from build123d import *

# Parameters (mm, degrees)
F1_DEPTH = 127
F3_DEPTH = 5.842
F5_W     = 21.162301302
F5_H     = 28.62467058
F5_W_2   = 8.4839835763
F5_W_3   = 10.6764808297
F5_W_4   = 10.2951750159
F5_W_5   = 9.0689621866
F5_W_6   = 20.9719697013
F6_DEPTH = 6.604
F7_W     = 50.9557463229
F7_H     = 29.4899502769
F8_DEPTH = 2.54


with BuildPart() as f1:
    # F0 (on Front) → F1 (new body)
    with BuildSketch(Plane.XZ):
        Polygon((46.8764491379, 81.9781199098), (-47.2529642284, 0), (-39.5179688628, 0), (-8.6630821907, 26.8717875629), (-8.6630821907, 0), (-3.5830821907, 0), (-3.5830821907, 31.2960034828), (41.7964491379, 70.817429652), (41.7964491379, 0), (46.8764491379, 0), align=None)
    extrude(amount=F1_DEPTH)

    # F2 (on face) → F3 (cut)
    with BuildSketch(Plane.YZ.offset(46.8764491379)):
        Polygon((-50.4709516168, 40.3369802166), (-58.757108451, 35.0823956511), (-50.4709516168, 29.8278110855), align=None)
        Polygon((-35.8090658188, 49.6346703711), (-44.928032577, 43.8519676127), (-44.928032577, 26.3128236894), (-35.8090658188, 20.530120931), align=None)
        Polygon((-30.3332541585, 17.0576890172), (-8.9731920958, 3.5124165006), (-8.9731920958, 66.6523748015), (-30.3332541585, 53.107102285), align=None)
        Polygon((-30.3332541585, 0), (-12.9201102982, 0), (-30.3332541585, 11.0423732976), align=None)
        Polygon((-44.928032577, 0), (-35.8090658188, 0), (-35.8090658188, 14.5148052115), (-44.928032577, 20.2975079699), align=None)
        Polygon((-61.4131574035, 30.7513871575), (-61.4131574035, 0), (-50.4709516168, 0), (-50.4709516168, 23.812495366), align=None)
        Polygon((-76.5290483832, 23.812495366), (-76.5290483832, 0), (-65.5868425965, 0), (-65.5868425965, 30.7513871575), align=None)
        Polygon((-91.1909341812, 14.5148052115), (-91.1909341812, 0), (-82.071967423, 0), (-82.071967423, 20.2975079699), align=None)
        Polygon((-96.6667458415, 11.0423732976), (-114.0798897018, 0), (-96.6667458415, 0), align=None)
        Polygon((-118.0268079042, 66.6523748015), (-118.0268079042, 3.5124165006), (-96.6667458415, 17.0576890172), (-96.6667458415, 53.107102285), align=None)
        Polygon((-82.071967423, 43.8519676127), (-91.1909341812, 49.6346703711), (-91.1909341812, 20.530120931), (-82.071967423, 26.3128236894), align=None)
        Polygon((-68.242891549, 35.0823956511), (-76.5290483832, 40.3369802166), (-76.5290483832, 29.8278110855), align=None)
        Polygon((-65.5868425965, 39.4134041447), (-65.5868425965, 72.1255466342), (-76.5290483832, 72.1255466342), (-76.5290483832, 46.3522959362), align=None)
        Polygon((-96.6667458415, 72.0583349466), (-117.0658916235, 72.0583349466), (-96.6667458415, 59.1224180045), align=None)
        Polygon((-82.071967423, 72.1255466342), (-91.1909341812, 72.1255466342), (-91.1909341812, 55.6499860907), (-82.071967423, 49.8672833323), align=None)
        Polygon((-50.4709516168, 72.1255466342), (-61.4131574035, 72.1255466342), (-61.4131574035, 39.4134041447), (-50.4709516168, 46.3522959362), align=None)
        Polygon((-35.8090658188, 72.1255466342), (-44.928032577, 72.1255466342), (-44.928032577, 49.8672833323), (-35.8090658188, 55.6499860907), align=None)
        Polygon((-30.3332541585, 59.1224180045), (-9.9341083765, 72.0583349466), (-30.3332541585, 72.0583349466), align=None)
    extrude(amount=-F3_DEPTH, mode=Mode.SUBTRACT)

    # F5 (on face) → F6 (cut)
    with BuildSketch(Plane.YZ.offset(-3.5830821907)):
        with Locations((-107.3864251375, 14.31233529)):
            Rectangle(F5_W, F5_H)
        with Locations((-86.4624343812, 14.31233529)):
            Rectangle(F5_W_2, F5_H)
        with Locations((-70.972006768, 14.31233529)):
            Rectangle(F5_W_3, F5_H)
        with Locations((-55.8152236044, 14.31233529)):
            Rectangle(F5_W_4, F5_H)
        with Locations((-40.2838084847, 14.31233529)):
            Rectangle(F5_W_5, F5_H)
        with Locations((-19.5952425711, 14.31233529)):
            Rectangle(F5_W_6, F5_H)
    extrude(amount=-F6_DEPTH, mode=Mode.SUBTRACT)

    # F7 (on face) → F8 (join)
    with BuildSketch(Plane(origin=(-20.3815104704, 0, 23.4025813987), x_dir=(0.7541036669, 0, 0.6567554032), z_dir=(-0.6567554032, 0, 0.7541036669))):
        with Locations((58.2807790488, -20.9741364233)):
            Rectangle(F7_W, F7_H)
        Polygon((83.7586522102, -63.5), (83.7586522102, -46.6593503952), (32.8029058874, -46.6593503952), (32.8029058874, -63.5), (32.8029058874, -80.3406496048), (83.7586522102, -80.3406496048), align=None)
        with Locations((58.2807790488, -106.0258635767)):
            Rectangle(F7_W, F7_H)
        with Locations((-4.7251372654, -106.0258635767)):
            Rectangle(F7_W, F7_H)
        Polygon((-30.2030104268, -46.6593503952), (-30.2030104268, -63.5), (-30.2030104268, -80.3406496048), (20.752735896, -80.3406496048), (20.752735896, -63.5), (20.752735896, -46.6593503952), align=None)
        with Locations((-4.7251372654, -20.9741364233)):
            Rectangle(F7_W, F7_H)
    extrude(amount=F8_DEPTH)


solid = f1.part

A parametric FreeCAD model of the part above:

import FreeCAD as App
import Part
import Sketcher
Q = App.Units.Quantity

doc = App.newDocument("Part")
body = doc.addObject("PartDesign::Body", "Body")

# Sketch on XZ plane
sketch1 = doc.addObject("Sketcher::SketchObject", "Sketch")
body.addObject(sketch1)
sketch1.AttachmentSupport = (doc.XZ_Plane, [""])
sketch1.MapMode = "FlatFace"
sketch1.addGeometry(Part.LineSegment(App.Vector(47, 82, 0), App.Vector(-47, 0, 0)), False)
sketch1.addGeometry(Part.LineSegment(App.Vector(-47, 0, 0), App.Vector(-40, 0, 0)), False)
sketch1.addGeometry(Part.LineSegment(App.Vector(-40, 0, 0), App.Vector(-9, 27, 0)), False)
sketch1.addGeometry(Part.LineSegment(App.Vector(-9, 27, 0), App.Vector(-9, 0, 0)), False)
sketch1.addGeometry(Part.LineSegment(App.Vector(-9, 0, 0), App.Vector(-4, 0, 0)), False)
sketch1.addGeometry(Part.LineSegment(App.Vector(-4, 0, 0), App.Vector(-4, 31, 0)), False)
sketch1.addGeometry(Part.LineSegment(App.Vector(-4, 31, 0), App.Vector(42, 71, 0)), False)
sketch1.addGeometry(Part.LineSegment(App.Vector(42, 71, 0), App.Vector(42, 0, 0)), False)
sketch1.addGeometry(Part.LineSegment(App.Vector(42, 0, 0), App.Vector(47, 0, 0)), False)
sketch1.addGeometry(Part.LineSegment(App.Vector(47, 0, 0), App.Vector(47, 82, 0)), False)
sketch1.addConstraint(Sketcher.Constraint("Coincident", 0, 2, 1, 1))
sketch1.addConstraint(Sketcher.Constraint("Coincident", 1, 2, 2, 1))
sketch1.addConstraint(Sketcher.Constraint("Coincident", 2, 2, 3, 1))
sketch1.addConstraint(Sketcher.Constraint("Coincident", 3, 2, 4, 1))
sketch1.addConstraint(Sketcher.Constraint("Coincident", 4, 2, 5, 1))
sketch1.addConstraint(Sketcher.Constraint("Coincident", 5, 2, 6, 1))
sketch1.addConstraint(Sketcher.Constraint("Coincident", 6, 2, 7, 1))
sketch1.addConstraint(Sketcher.Constraint("Coincident", 7, 2, 8, 1))
sketch1.addConstraint(Sketcher.Constraint("Coincident", 8, 2, 9, 1))
sketch1.addConstraint(Sketcher.Constraint("Coincident", 9, 2, 0, 1))
sketch1.addConstraint(Sketcher.Constraint("Horizontal", 1))
sketch1.addConstraint(Sketcher.Constraint("Vertical", 3))
sketch1.addConstraint(Sketcher.Constraint("Horizontal", 4))
sketch1.addConstraint(Sketcher.Constraint("Vertical", 5))
sketch1.addConstraint(Sketcher.Constraint("Vertical", 7))
sketch1.addConstraint(Sketcher.Constraint("Horizontal", 8))
sketch1.addConstraint(Sketcher.Constraint("Vertical", 9))
sketch1.addConstraint(Sketcher.Constraint("PointOnObject", 0, 2, -1))
sketch1.addConstraint(Sketcher.Constraint("PointOnObject", 3, 2, -1))
sketch1.addConstraint(Sketcher.Constraint("PointOnObject", 7, 2, -1))
sketch1.addConstraint(Sketcher.Constraint("Parallel", 0, 2))
sketch1.addConstraint(Sketcher.Constraint("Parallel", 2, 6))
sketch1.addConstraint(Sketcher.Constraint("Equal", 4, 8))
sketch1.addConstraint(Sketcher.Constraint("DistanceX", 4, 1, 4, 2, Q("0.2 in")))
sketch1.addConstraint(Sketcher.Constraint("DistanceY", 7, 2, 7, 1, 70.81743))
sketch1.addConstraint(Sketcher.Constraint("DistanceY", 9, 1, 9, 2, 81.97812))
sketch1.addConstraint(Sketcher.Constraint("Distance", 0, 124.822909))
sketch1.addConstraint(Sketcher.Constraint("Distance", 6, 60.176781))
sketch1.addConstraint(Sketcher.Constraint("DistanceX", 1, 1, 1, 2, 7.734995))
sketch1.addConstraint(Sketcher.Constraint("DistanceX", 1, 2, -1, 1, 39.517969))
pad1 = doc.addObject("PartDesign::Pad", "Pad")
body.addObject(pad1)
pad1.Profile = sketch1
pad1.Length = Q("5 in")

# Sketch on YZ plane
sketch2 = doc.addObject("Sketcher::SketchObject", "Sketch001")
body.addObject(sketch2)
sketch2.AttachmentSupport = (doc.YZ_Plane, [""])
sketch2.MapMode = "FlatFace"
sketch2.AttachmentOffset = App.Placement(App.Vector(0, 0, 46.876449), App.Rotation())
sketch2.addGeometry(Part.LineSegment(App.Vector(-50, 40, 0), App.Vector(-59, 35, 0)), False)
sketch2.addGeometry(Part.LineSegment(App.Vector(-59, 35, 0), App.Vector(-50, 30, 0)), False)
sketch2.addGeometry(Part.LineSegment(App.Vector(-50, 30, 0), App.Vector(-50, 40, 0)), False)
sketch2.addGeometry(Part.LineSegment(App.Vector(-36, 50, 0), App.Vector(-45, 44, 0)), False)
sketch2.addGeometry(Part.LineSegment(App.Vector(-45, 44, 0), App.Vector(-45, 26, 0)), False)
sketch2.addGeometry(Part.LineSegment(App.Vector(-45, 26, 0), App.Vector(-36, 21, 0)), False)
sketch2.addGeometry(Part.LineSegment(App.Vector(-36, 21, 0), App.Vector(-36, 50, 0)), False)
sketch2.addGeometry(Part.LineSegment(App.Vector(-30, 17, 0), App.Vector(-9, 4, 0)), False)
sketch2.addGeometry(Part.LineSegment(App.Vector(-9, 4, 0), App.Vector(-9, 67, 0)), False)
sketch2.addGeometry(Part.LineSegment(App.Vector(-9, 67, 0), App.Vector(-30, 53, 0)), False)
sketch2.addGeometry(Part.LineSegment(App.Vector(-30, 53, 0), App.Vector(-30, 17, 0)), False)
sketch2.addGeometry(Part.LineSegment(App.Vector(-30, 0, 0), App.Vector(-13, 0, 0)), False)
sketch2.addGeometry(Part.LineSegment(App.Vector(-13, 0, 0), App.Vector(-30, 11, 0)), False)
sketch2.addGeometry(Part.LineSegment(App.Vector(-30, 11, 0), App.Vector(-30, 0, 0)), False)
sketch2.addGeometry(Part.LineSegment(App.Vector(-45, 0, 0), App.Vector(-36, 0, 0)), False)
sketch2.addGeometry(Part.LineSegment(App.Vector(-36, 0, 0), App.Vector(-36, 15, 0)), False)
sketch2.addGeometry(Part.LineSegment(App.Vector(-36, 15, 0), App.Vector(-45, 20, 0)), False)
sketch2.addGeometry(Part.LineSegment(App.Vector(-45, 20, 0), App.Vector(-45, 0, 0)), False)
sketch2.addGeometry(Part.LineSegment(App.Vector(-61, 31, 0), App.Vector(-61, 0, 0)), False)
sketch2.addGeometry(Part.LineSegment(App.Vector(-61, 0, 0), App.Vector(-50, 0, 0)), False)
sketch2.addGeometry(Part.LineSegment(App.Vector(-50, 0, 0), App.Vector(-50, 24, 0)), False)
sketch2.addGeometry(Part.LineSegment(App.Vector(-50, 24, 0), App.Vector(-61, 31, 0)), False)
sketch2.addGeometry(Part.LineSegment(App.Vector(-77, 24, 0), App.Vector(-77, 0, 0)), False)
sketch2.addGeometry(Part.LineSegment(App.Vector(-77, 0, 0), App.Vector(-66, 0, 0)), False)
sketch2.addGeometry(Part.LineSegment(App.Vector(-66, 0, 0), App.Vector(-66, 31, 0)), False)
sketch2.addGeometry(Part.LineSegment(App.Vector(-66, 31, 0), App.Vector(-77, 24, 0)), False)
sketch2.addGeometry(Part.LineSegment(App.Vector(-91, 15, 0), App.Vector(-91, 0, 0)), False)
sketch2.addGeometry(Part.LineSegment(App.Vector(-91, 0, 0), App.Vector(-82, 0, 0)), False)
sketch2.addGeometry(Part.LineSegment(App.Vector(-82, 0, 0), App.Vector(-82, 20, 0)), False)
sketch2.addGeometry(Part.LineSegment(App.Vector(-82, 20, 0), App.Vector(-91, 15, 0)), False)
sketch2.addGeometry(Part.LineSegment(App.Vector(-97, 11, 0), App.Vector(-114, 0, 0)), False)
sketch2.addGeometry(Part.LineSegment(App.Vector(-114, 0, 0), App.Vector(-97, 0, 0)), False)
sketch2.addGeometry(Part.LineSegment(App.Vector(-97, 0, 0), App.Vector(-97, 11, 0)), False)
sketch2.addGeometry(Part.LineSegment(App.Vector(-118, 67, 0), App.Vector(-118, 4, 0)), False)
sketch2.addGeometry(Part.LineSegment(App.Vector(-118, 4, 0), App.Vector(-97, 17, 0)), False)
sketch2.addGeometry(Part.LineSegment(App.Vector(-97, 17, 0), App.Vector(-97, 53, 0)), False)
sketch2.addGeometry(Part.LineSegment(App.Vector(-97, 53, 0), App.Vector(-118, 67, 0)), False)
sketch2.addGeometry(Part.LineSegment(App.Vector(-82, 44, 0), App.Vector(-91, 50, 0)), False)
sketch2.addGeometry(Part.LineSegment(App.Vector(-91, 50, 0), App.Vector(-91, 21, 0)), False)
sketch2.addGeometry(Part.LineSegment(App.Vector(-91, 21, 0), App.Vector(-82, 26, 0)), False)
sketch2.addGeometry(Part.LineSegment(App.Vector(-82, 26, 0), App.Vector(-82, 44, 0)), False)
sketch2.addGeometry(Part.LineSegment(App.Vector(-68, 35, 0), App.Vector(-77, 40, 0)), False)
sketch2.addGeometry(Part.LineSegment(App.Vector(-77, 40, 0), App.Vector(-77, 30, 0)), False)
sketch2.addGeometry(Part.LineSegment(App.Vector(-77, 30, 0), App.Vector(-68, 35, 0)), False)
sketch2.addGeometry(Part.LineSegment(App.Vector(-66, 39, 0), App.Vector(-66, 72, 0)), False)
sketch2.addGeometry(Part.LineSegment(App.Vector(-66, 72, 0), App.Vector(-77, 72, 0)), False)
sketch2.addGeometry(Part.LineSegment(App.Vector(-77, 72, 0), App.Vector(-77, 46, 0)), False)
sketch2.addGeometry(Part.LineSegment(App.Vector(-77, 46, 0), App.Vector(-66, 39, 0)), False)
sketch2.addGeometry(Part.LineSegment(App.Vector(-97, 72, 0), App.Vector(-117, 72, 0)), False)
sketch2.addGeometry(Part.LineSegment(App.Vector(-117, 72, 0), App.Vector(-97, 59, 0)), False)
sketch2.addGeometry(Part.LineSegment(App.Vector(-97, 59, 0), App.Vector(-97, 72, 0)), False)
sketch2.addGeometry(Part.LineSegment(App.Vector(-82, 72, 0), App.Vector(-91, 72, 0)), False)
sketch2.addGeometry(Part.LineSegment(App.Vector(-91, 72, 0), App.Vector(-91, 56, 0)), False)
sketch2.addGeometry(Part.LineSegment(App.Vector(-91, 56, 0), App.Vector(-82, 50, 0)), False)
sketch2.addGeometry(Part.LineSegment(App.Vector(-82, 50, 0), App.Vector(-82, 72, 0)), False)
sketch2.addGeometry(Part.LineSegment(App.Vector(-50, 72, 0), App.Vector(-61, 72, 0)), False)
sketch2.addGeometry(Part.LineSegment(App.Vector(-61, 72, 0), App.Vector(-61, 39, 0)), False)
sketch2.addGeometry(Part.LineSegment(App.Vector(-61, 39, 0), App.Vector(-50, 46, 0)), False)
sketch2.addGeometry(Part.LineSegment(App.Vector(-50, 46, 0), App.Vector(-50, 72, 0)), False)
sketch2.addGeometry(Part.LineSegment(App.Vector(-36, 72, 0), App.Vector(-45, 72, 0)), False)
sketch2.addGeometry(Part.LineSegment(App.Vector(-45, 72, 0), App.Vector(-45, 50, 0)), False)
sketch2.addGeometry(Part.LineSegment(App.Vector(-45, 50, 0), App.Vector(-36, 56, 0)), False)
sketch2.addGeometry(Part.LineSegment(App.Vector(-36, 56, 0), App.Vector(-36, 72, 0)), False)
sketch2.addGeometry(Part.LineSegment(App.Vector(-30, 59, 0), App.Vector(-10, 72, 0)), False)
sketch2.addGeometry(Part.LineSegment(App.Vector(-10, 72, 0), App.Vector(-30, 72, 0)), False)
sketch2.addGeometry(Part.LineSegment(App.Vector(-30, 72, 0), App.Vector(-30, 59, 0)), False)
sketch2.addConstraint(Sketcher.Constraint("Coincident", 0, 2, 1, 1))
sketch2.addConstraint(Sketcher.Constraint("Coincident", 1, 2, 2, 1))
sketch2.addConstraint(Sketcher.Constraint("Coincident", 2, 2, 0, 1))
sketch2.addConstraint(Sketcher.Constraint("Coincident", 3, 2, 4, 1))
sketch2.addConstraint(Sketcher.Constraint("Coincident", 4, 2, 5, 1))
sketch2.addConstraint(Sketcher.Constraint("Coincident", 5, 2, 6, 1))
sketch2.addConstraint(Sketcher.Constraint("Coincident", 6, 2, 3, 1))
sketch2.addConstraint(Sketcher.Constraint("Coincident", 7, 2, 8, 1))
sketch2.addConstraint(Sketcher.Constraint("Coincident", 8, 2, 9, 1))
sketch2.addConstraint(Sketcher.Constraint("Coincident", 9, 2, 10, 1))
sketch2.addConstraint(Sketcher.Constraint("Coincident", 10, 2, 7, 1))
sketch2.addConstraint(Sketcher.Constraint("Coincident", 11, 2, 12, 1))
sketch2.addConstraint(Sketcher.Constraint("Coincident", 12, 2, 13, 1))
sketch2.addConstraint(Sketcher.Constraint("Coincident", 13, 2, 11, 1))
sketch2.addConstraint(Sketcher.Constraint("Coincident", 14, 2, 15, 1))
sketch2.addConstraint(Sketcher.Constraint("Coincident", 15, 2, 16, 1))
sketch2.addConstraint(Sketcher.Constraint("Coincident", 16, 2, 17, 1))
sketch2.addConstraint(Sketcher.Constraint("Coincident", 17, 2, 14, 1))
sketch2.addConstraint(Sketcher.Constraint("Coincident", 18, 2, 19, 1))
sketch2.addConstraint(Sketcher.Constraint("Coincident", 19, 2, 20, 1))
sketch2.addConstraint(Sketcher.Constraint("Coincident", 20, 2, 21, 1))
sketch2.addConstraint(Sketcher.Constraint("Coincident", 21, 2, 18, 1))
sketch2.addConstraint(Sketcher.Constraint("Coincident", 22, 2, 23, 1))
sketch2.addConstraint(Sketcher.Constraint("Coincident", 23, 2, 24, 1))
sketch2.addConstraint(Sketcher.Constraint("Coincident", 24, 2, 25, 1))
sketch2.addConstraint(Sketcher.Constraint("Coincident", 25, 2, 22, 1))
sketch2.addConstraint(Sketcher.Constraint("Coincident", 26, 2, 27, 1))
sketch2.addConstraint(Sketcher.Constraint("Coincident", 27, 2, 28, 1))
sketch2.addConstraint(Sketcher.Constraint("Coincident", 28, 2, 29, 1))
sketch2.addConstraint(Sketcher.Constraint("Coincident", 29, 2, 26, 1))
sketch2.addConstraint(Sketcher.Constraint("Coincident", 30, 2, 31, 1))
sketch2.addConstraint(Sketcher.Constraint("Coincident", 31, 2, 32, 1))
sketch2.addConstraint(Sketcher.Constraint("Coincident", 32, 2, 30, 1))
sketch2.addConstraint(Sketcher.Constraint("Coincident", 33, 2, 34, 1))
sketch2.addConstraint(Sketcher.Constraint("Coincident", 34, 2, 35, 1))
sketch2.addConstraint(Sketcher.Constraint("Coincident", 35, 2, 36, 1))
sketch2.addConstraint(Sketcher.Constraint("Coincident", 36, 2, 33, 1))
sketch2.addConstraint(Sketcher.Constraint("Coincident", 37, 2, 38, 1))
sketch2.addConstraint(Sketcher.Constraint("Coincident", 38, 2, 39, 1))
sketch2.addConstraint(Sketcher.Constraint("Coincident", 39, 2, 40, 1))
sketch2.addConstraint(Sketcher.Constraint("Coincident", 40, 2, 37, 1))
sketch2.addConstraint(Sketcher.Constraint("Coincident", 41, 2, 42, 1))
sketch2.addConstraint(Sketcher.Constraint("Coincident", 42, 2, 43, 1))
sketch2.addConstraint(Sketcher.Constraint("Coincident", 43, 2, 41, 1))
sketch2.addConstraint(Sketcher.Constraint("Coincident", 44, 2, 45, 1))
sketch2.addConstraint(Sketcher.Constraint("Coincident", 45, 2, 46, 1))
sketch2.addConstraint(Sketcher.Constraint("Coincident", 46, 2, 47, 1))
sketch2.addConstraint(Sketcher.Constraint("Coincident", 47, 2, 44, 1))
sketch2.addConstraint(Sketcher.Constraint("Coincident", 48, 2, 49, 1))
sketch2.addConstraint(Sketcher.Constraint("Coincident", 49, 2, 50, 1))
sketch2.addConstraint(Sketcher.Constraint("Coincident", 50, 2, 48, 1))
sketch2.addConstraint(Sketcher.Constraint("Coincident", 51, 2, 52, 1))
sketch2.addConstraint(Sketcher.Constraint("Coincident", 52, 2, 53, 1))
sketch2.addConstraint(Sketcher.Constraint("Coincident", 53, 2, 54, 1))
sketch2.addConstraint(Sketcher.Constraint("Coincident", 54, 2, 51, 1))
sketch2.addConstraint(Sketcher.Constraint("Coincident", 55, 2, 56, 1))
sketch2.addConstraint(Sketcher.Constraint("Coincident", 56, 2, 57, 1))
sketch2.addConstraint(Sketcher.Constraint("Coincident", 57, 2, 58, 1))
sketch2.addConstraint(Sketcher.Constraint("Coincident", 58, 2, 55, 1))
sketch2.addConstraint(Sketcher.Constraint("Coincident", 59, 2, 60, 1))
sketch2.addConstraint(Sketcher.Constraint("Coincident", 60, 2, 61, 1))
sketch2.addConstraint(Sketcher.Constraint("Coincident", 61, 2, 62, 1))
sketch2.addConstraint(Sketcher.Constraint("Coincident", 62, 2, 59, 1))
sketch2.addConstraint(Sketcher.Constraint("Coincident", 63, 2, 64, 1))
sketch2.addConstraint(Sketcher.Constraint("Coincident", 64, 2, 65, 1))
sketch2.addConstraint(Sketcher.Constraint("Coincident", 65, 2, 63, 1))
sketch2.addConstraint(Sketcher.Constraint("Vertical", 2))
sketch2.addConstraint(Sketcher.Constraint("Vertical", 4))
sketch2.addConstraint(Sketcher.Constraint("Vertical", 6))
sketch2.addConstraint(Sketcher.Constraint("Vertical", 8))
sketch2.addConstraint(Sketcher.Constraint("Vertical", 10))
sketch2.addConstraint(Sketcher.Constraint("Horizontal", 11))
sketch2.addConstraint(Sketcher.Constraint("Vertical", 13))
sketch2.addConstraint(Sketcher.Constraint("Horizontal", 14))
sketch2.addConstraint(Sketcher.Constraint("Vertical", 15))
sketch2.addConstraint(Sketcher.Constraint("Vertical", 17))
sketch2.addConstraint(Sketcher.Constraint("Vertical", 18))
sketch2.addConstraint(Sketcher.Constraint("Horizontal", 19))
sketch2.addConstraint(Sketcher.Constraint("Vertical", 20))
sketch2.addConstraint(Sketcher.Constraint("Vertical", 22))
sketch2.addConstraint(Sketcher.Constraint("Horizontal", 23))
sketch2.addConstraint(Sketcher.Constraint("Vertical", 24))
sketch2.addConstraint(Sketcher.Constraint("Vertical", 26))
sketch2.addConstraint(Sketcher.Constraint("Horizontal", 27))
sketch2.addConstraint(Sketcher.Constraint("Vertical", 28))
sketch2.addConstraint(Sketcher.Constraint("Horizontal", 31))
sketch2.addConstraint(Sketcher.Constraint("Vertical", 32))
sketch2.addConstraint(Sketcher.Constraint("Vertical", 33))
sketch2.addConstraint(Sketcher.Constraint("Vertical", 35))
sketch2.addConstraint(Sketcher.Constraint("Vertical", 38))
sketch2.addConstraint(Sketcher.Constraint("Vertical", 40))
sketch2.addConstraint(Sketcher.Constraint("Vertical", 42))
sketch2.addConstraint(Sketcher.Constraint("Vertical", 44))
sketch2.addConstraint(Sketcher.Constraint("Horizontal", 45))
sketch2.addConstraint(Sketcher.Constraint("Vertical", 46))
sketch2.addConstraint(Sketcher.Constraint("Horizontal", 48))
sketch2.addConstraint(Sketcher.Constraint("Vertical", 50))
sketch2.addConstraint(Sketcher.Constraint("Horizontal", 51))
sketch2.addConstraint(Sketcher.Constraint("Vertical", 52))
sketch2.addConstraint(Sketcher.Constraint("Vertical", 54))
sketch2.addConstraint(Sketcher.Constraint("Horizontal", 55))
sketch2.addConstraint(Sketcher.Constraint("Vertical", 56))
sketch2.addConstraint(Sketcher.Constraint("Vertical", 58))
sketch2.addConstraint(Sketcher.Constraint("Horizontal", 59))
sketch2.addConstraint(Sketcher.Constraint("Vertical", 60))
sketch2.addConstraint(Sketcher.Constraint("Vertical", 62))
sketch2.addConstraint(Sketcher.Constraint("Horizontal", 64))
sketch2.addConstraint(Sketcher.Constraint("Vertical", 65))
sketch2.addConstraint(Sketcher.Constraint("PointOnObject", 11, 2, -1))
sketch2.addConstraint(Sketcher.Constraint("PointOnObject", 14, 2, -1))
sketch2.addConstraint(Sketcher.Constraint("PointOnObject", 18, 2, -1))
sketch2.addConstraint(Sketcher.Constraint("PointOnObject", 22, 2, -1))
sketch2.addConstraint(Sketcher.Constraint("PointOnObject", 26, 2, -1))
sketch2.addConstraint(Sketcher.Constraint("PointOnObject", 30, 2, -1))
sketch2.addConstraint(Sketcher.Constraint("Parallel", 0, 3))
sketch2.addConstraint(Sketcher.Constraint("Parallel", 1, 5))
sketch2.addConstraint(Sketcher.Constraint("Parallel", 5, 7))
sketch2.addConstraint(Sketcher.Constraint("Parallel", 3, 9))
sketch2.addConstraint(Sketcher.Constraint("Parallel", 7, 12))
sketch2.addConstraint(Sketcher.Constraint("Parallel", 12, 16))
sketch2.addConstraint(Sketcher.Constraint("Parallel", 16, 21))
sketch2.addConstraint(Sketcher.Constraint("Parallel", 9, 25))
sketch2.addConstraint(Sketcher.Constraint("Parallel", 25, 29))
sketch2.addConstraint(Sketcher.Constraint("Parallel", 29, 30))
sketch2.addConstraint(Sketcher.Constraint("Parallel", 30, 34))
sketch2.addConstraint(Sketcher.Constraint("Parallel", 21, 36))
sketch2.addConstraint(Sketcher.Constraint("Parallel", 36, 37))
sketch2.addConstraint(Sketcher.Constraint("Parallel", 34, 39))
sketch2.addConstraint(Sketcher.Constraint("Parallel", 37, 41))
sketch2.addConstraint(Sketcher.Constraint("Parallel", 39, 43))
sketch2.addConstraint(Sketcher.Constraint("Parallel", 41, 47))
sketch2.addConstraint(Sketcher.Constraint("Parallel", 47, 49))
sketch2.addConstraint(Sketcher.Constraint("Parallel", 49, 53))
sketch2.addConstraint(Sketcher.Constraint("Parallel", 43, 57))
sketch2.addConstraint(Sketcher.Constraint("Parallel", 57, 61))
sketch2.addConstraint(Sketcher.Constraint("Parallel", 61, 63))
sketch2.addConstraint(Sketcher.Constraint("Horizontal", 21, 2, 24, 2))
sketch2.addConstraint(Sketcher.Constraint("Horizontal", 20, 2, 25, 2))
sketch2.addConstraint(Sketcher.Constraint("Horizontal", 16, 2, 28, 2))
sketch2.addConstraint(Sketcher.Constraint("Horizontal", 15, 2, 29, 2))
sketch2.addConstraint(Sketcher.Constraint("Horizontal", 12, 2, 32, 2))
sketch2.addConstraint(Sketcher.Constraint("Horizontal", 7, 2, 33, 2))
sketch2.addConstraint(Sketcher.Constraint("Horizontal", 10, 2, 34, 2))
sketch2.addConstraint(Sketcher.Constraint("Horizontal", 9, 2, 35, 2))
sketch2.addConstraint(Sketcher.Constraint("Horizontal", 8, 2, 36, 2))
sketch2.addConstraint(Sketcher.Constraint("Horizontal", 6, 2, 37, 2))
sketch2.addConstraint(Sketcher.Constraint("Horizontal", 5, 2, 38, 2))
sketch2.addConstraint(Sketcher.Constraint("Horizontal", 4, 2, 39, 2))
sketch2.addConstraint(Sketcher.Constraint("Horizontal", 2, 2, 41, 2))
sketch2.addConstraint(Sketcher.Constraint("Horizontal", 1, 2, 42, 2))
sketch2.addConstraint(Sketcher.Constraint("Horizontal", 45, 2, 51, 2))
sketch2.addConstraint(Sketcher.Constraint("Horizontal", 54, 2, 55, 2))
sketch2.addConstraint(Sketcher.Constraint("Horizontal", 47, 2, 56, 2))
sketch2.addConstraint(Sketcher.Constraint("Horizontal", 46, 2, 57, 2))
sketch2.addConstraint(Sketcher.Constraint("Horizontal", 58, 2, 59, 2))
sketch2.addConstraint(Sketcher.Constraint("Horizontal", 53, 2, 60, 2))
sketch2.addConstraint(Sketcher.Constraint("Horizontal", 52, 2, 61, 2))
sketch2.addConstraint(Sketcher.Constraint("Horizontal", 50, 2, 63, 2))
sketch2.addConstraint(Sketcher.Constraint("Horizontal", 49, 2, 65, 2))
sketch2.addConstraint(Sketcher.Constraint("Vertical", 10, 2, 12, 2))
sketch2.addConstraint(Sketcher.Constraint("Vertical", 6, 2, 14, 2))
sketch2.addConstraint(Sketcher.Constraint("Vertical", 4, 2, 16, 2))
sketch2.addConstraint(Sketcher.Constraint("Vertical", 2, 2, 19, 2))
sketch2.addConstraint(Sketcher.Constraint("Vertical", 32, 2, 34, 2))
sketch2.addConstraint(Sketcher.Constraint("Vertical", 29, 2, 37, 2))
sketch2.addConstraint(Sketcher.Constraint("Vertical", 25, 2, 41, 2))
sketch2.addConstraint(Sketcher.Constraint("Vertical", 24, 2, 44, 2))
sketch2.addConstraint(Sketcher.Constraint("Vertical", 42, 2, 45, 2))
sketch2.addConstraint(Sketcher.Constraint("Vertical", 35, 2, 49, 2))
sketch2.addConstraint(Sketcher.Constraint("Vertical", 38, 2, 51, 2))
sketch2.addConstraint(Sketcher.Constraint("Vertical", 40, 2, 53, 2))
sketch2.addConstraint(Sketcher.Constraint("Vertical", 21, 2, 55, 2))
sketch2.addConstraint(Sketcher.Constraint("Vertical", 17, 2, 59, 2))
sketch2.addConstraint(Sketcher.Constraint("Vertical", 13, 2, 64, 2))
sketch2.addConstraint(Sketcher.Constraint("DistanceY", 20, 1, 20, 2, Q("0.9374998 in")))
sketch2.addConstraint(Sketcher.Constraint("DistanceY", 2, 1, 2, 2, 10.509169))
sketch2.addConstraint(Sketcher.Constraint("DistanceY", 6, 1, 6, 2, 29.104549))
sketch2.addConstraint(Sketcher.Constraint("DistanceY", 8, 1, 8, 2, 63.139958))
sketch2.addConstraint(Sketcher.Constraint("DistanceY", 46, 2, 46, 1, 25.773251))
sketch2.addConstraint(Sketcher.Constraint("DistanceY", 52, 2, 52, 1, 16.475561))
sketch2.addConstraint(Sketcher.Constraint("Distance", 0, 9.811781))
sketch2.addConstraint(Sketcher.Constraint("Distance", 7, 25.292818))
sketch2.addConstraint(Sketcher.Constraint("Distance", 49, 24.154981))
sketch2.addConstraint(Sketcher.Constraint("DistanceX", 11, 1, 11, 2, 17.413144))
sketch2.addConstraint(Sketcher.Constraint("DistanceX", 14, 1, 14, 2, 9.118967))
sketch2.addConstraint(Sketcher.Constraint("DistanceX", 19, 1, 19, 2, 10.942206))
sketch2.addConstraint(Sketcher.Constraint("DistanceY", 15, 1, 15, 2, 14.514805))
sketch2.addConstraint(Sketcher.Constraint("DistanceX", 0, 2, -1, 1, 58.757108))
sketch2.addConstraint(Sketcher.Constraint("DistanceY", -1, 1, 1, 2, 29.827811))
sketch2.addConstraint(Sketcher.Constraint("DistanceY", -1, 1, 5, 2, 20.530121))
sketch2.addConstraint(Sketcher.Constraint("DistanceY", -1, 1, 10, 2, 17.057689))
sketch2.addConstraint(Sketcher.Constraint("DistanceX", 11, 2, -1, 1, 12.92011))
sketch2.addConstraint(Sketcher.Constraint("DistanceX", 22, 2, -1, 1, 76.529048))
sketch2.addConstraint(Sketcher.Constraint("DistanceX", 30, 2, -1, 1, 114.07989))
sketch2.addConstraint(Sketcher.Constraint("DistanceY", -1, 1, 49, 2, 59.122418))
sketch2.addConstraint(Sketcher.Constraint("DistanceX", 3, 2, -1, 1, 44.928033))
sketch2.addConstraint(Sketcher.Constraint("DistanceX", 26, 2, -1, 1, 91.190934))
sketch2.addConstraint(Sketcher.Constraint("DistanceY", -1, 1, 44, 2, 72.125547))
pocket1 = doc.addObject("PartDesign::Pocket", "Pocket")
body.addObject(pocket1)
pocket1.Profile = sketch2
pocket1.Length = Q("0.23 in")

# Sketch on YZ plane
sketch3 = doc.addObject("Sketcher::SketchObject", "Sketch002")
body.addObject(sketch3)
sketch3.AttachmentSupport = (doc.YZ_Plane, [""])
sketch3.MapMode = "FlatFace"
sketch3.AttachmentOffset = App.Placement(App.Vector(0, 0, -3.583082), App.Rotation())
sketch3.addGeometry(Part.LineSegment(App.Vector(-118, 29, 0), App.Vector(-118, 0, 0)), False)
sketch3.addGeometry(Part.LineSegment(App.Vector(-118, 0, 0), App.Vector(-97, 0, 0)), False)
sketch3.addGeometry(Part.LineSegment(App.Vector(-97, 0, 0), App.Vector(-97, 29, 0)), False)
sketch3.addGeometry(Part.LineSegment(App.Vector(-97, 29, 0), App.Vector(-118, 29, 0)), False)
sketch3.addGeometry(Part.LineSegment(App.Vector(-91, 29, 0), App.Vector(-91, 0, 0)), False)
sketch3.addGeometry(Part.LineSegment(App.Vector(-91, 0, 0), App.Vector(-82, 0, 0)), False)
sketch3.addGeometry(Part.LineSegment(App.Vector(-82, 0, 0), App.Vector(-82, 29, 0)), False)
sketch3.addGeometry(Part.LineSegment(App.Vector(-82, 29, 0), App.Vector(-91, 29, 0)), False)
sketch3.addGeometry(Part.LineSegment(App.Vector(-76, 29, 0), App.Vector(-76, 0, 0)), False)
sketch3.addGeometry(Part.LineSegment(App.Vector(-76, 0, 0), App.Vector(-66, 0, 0)), False)
sketch3.addGeometry(Part.LineSegment(App.Vector(-66, 0, 0), App.Vector(-66, 29, 0)), False)
sketch3.addGeometry(Part.LineSegment(App.Vector(-66, 29, 0), App.Vector(-76, 29, 0)), False)
sketch3.addGeometry(Part.LineSegment(App.Vector(-61, 29, 0), App.Vector(-61, 0, 0)), False)
sketch3.addGeometry(Part.LineSegment(App.Vector(-61, 0, 0), App.Vector(-51, 0, 0)), False)
sketch3.addGeometry(Part.LineSegment(App.Vector(-51, 0, 0), App.Vector(-51, 29, 0)), False)
sketch3.addGeometry(Part.LineSegment(App.Vector(-51, 29, 0), App.Vector(-61, 29, 0)), False)
sketch3.addGeometry(Part.LineSegment(App.Vector(-45, 29, 0), App.Vector(-45, 0, 0)), False)
sketch3.addGeometry(Part.LineSegment(App.Vector(-45, 0, 0), App.Vector(-36, 0, 0)), False)
sketch3.addGeometry(Part.LineSegment(App.Vector(-36, 0, 0), App.Vector(-36, 29, 0)), False)
sketch3.addGeometry(Part.LineSegment(App.Vector(-36, 29, 0), App.Vector(-45, 29, 0)), False)
sketch3.addGeometry(Part.LineSegment(App.Vector(-30, 29, 0), App.Vector(-30, 0, 0)), False)
sketch3.addGeometry(Part.LineSegment(App.Vector(-30, 0, 0), App.Vector(-9, 0, 0)), False)
sketch3.addGeometry(Part.LineSegment(App.Vector(-9, 0, 0), App.Vector(-9, 29, 0)), False)
sketch3.addGeometry(Part.LineSegment(App.Vector(-9, 29, 0), App.Vector(-30, 29, 0)), False)
sketch3.addConstraint(Sketcher.Constraint("Coincident", 0, 2, 1, 1))
sketch3.addConstraint(Sketcher.Constraint("Coincident", 1, 2, 2, 1))
sketch3.addConstraint(Sketcher.Constraint("Coincident", 2, 2, 3, 1))
sketch3.addConstraint(Sketcher.Constraint("Coincident", 3, 2, 0, 1))
sketch3.addConstraint(Sketcher.Constraint("Coincident", 4, 2, 5, 1))
sketch3.addConstraint(Sketcher.Constraint("Coincident", 5, 2, 6, 1))
sketch3.addConstraint(Sketcher.Constraint("Coincident", 6, 2, 7, 1))
sketch3.addConstraint(Sketcher.Constraint("Coincident", 7, 2, 4, 1))
sketch3.addConstraint(Sketcher.Constraint("Coincident", 8, 2, 9, 1))
sketch3.addConstraint(Sketcher.Constraint("Coincident", 9, 2, 10, 1))
sketch3.addConstraint(Sketcher.Constraint("Coincident", 10, 2, 11, 1))
sketch3.addConstraint(Sketcher.Constraint("Coincident", 11, 2, 8, 1))
sketch3.addConstraint(Sketcher.Constraint("Coincident", 12, 2, 13, 1))
sketch3.addConstraint(Sketcher.Constraint("Coincident", 13, 2, 14, 1))
sketch3.addConstraint(Sketcher.Constraint("Coincident", 14, 2, 15, 1))
sketch3.addConstraint(Sketcher.Constraint("Coincident", 15, 2, 12, 1))
sketch3.addConstraint(Sketcher.Constraint("Coincident", 16, 2, 17, 1))
sketch3.addConstraint(Sketcher.Constraint("Coincident", 17, 2, 18, 1))
sketch3.addConstraint(Sketcher.Constraint("Coincident", 18, 2, 19, 1))
sketch3.addConstraint(Sketcher.Constraint("Coincident", 19, 2, 16, 1))
sketch3.addConstraint(Sketcher.Constraint("Coincident", 20, 2, 21, 1))
sketch3.addConstraint(Sketcher.Constraint("Coincident", 21, 2, 22, 1))
sketch3.addConstraint(Sketcher.Constraint("Coincident", 22, 2, 23, 1))
sketch3.addConstraint(Sketcher.Constraint("Coincident", 23, 2, 20, 1))
sketch3.addConstraint(Sketcher.Constraint("Vertical", 0))
sketch3.addConstraint(Sketcher.Constraint("Horizontal", 1))
sketch3.addConstraint(Sketcher.Constraint("Vertical", 2))
sketch3.addConstraint(Sketcher.Constraint("Horizontal", 3))
sketch3.addConstraint(Sketcher.Constraint("Vertical", 4))
sketch3.addConstraint(Sketcher.Constraint("Horizontal", 5))
sketch3.addConstraint(Sketcher.Constraint("Vertical", 6))
sketch3.addConstraint(Sketcher.Constraint("Horizontal", 7))
sketch3.addConstraint(Sketcher.Constraint("Vertical", 8))
sketch3.addConstraint(Sketcher.Constraint("Horizontal", 9))
sketch3.addConstraint(Sketcher.Constraint("Vertical", 10))
sketch3.addConstraint(Sketcher.Constraint("Horizontal", 11))
sketch3.addConstraint(Sketcher.Constraint("Vertical", 12))
sketch3.addConstraint(Sketcher.Constraint("Horizontal", 13))
sketch3.addConstraint(Sketcher.Constraint("Vertical", 14))
sketch3.addConstraint(Sketcher.Constraint("Horizontal", 15))
sketch3.addConstraint(Sketcher.Constraint("Vertical", 16))
sketch3.addConstraint(Sketcher.Constraint("Horizontal", 17))
sketch3.addConstraint(Sketcher.Constraint("Vertical", 18))
sketch3.addConstraint(Sketcher.Constraint("Horizontal", 19))
sketch3.addConstraint(Sketcher.Constraint("Vertical", 20))
sketch3.addConstraint(Sketcher.Constraint("Horizontal", 21))
sketch3.addConstraint(Sketcher.Constraint("Vertical", 22))
sketch3.addConstraint(Sketcher.Constraint("Horizontal", 23))
sketch3.addConstraint(Sketcher.Constraint("PointOnObject", 0, 2, -1))
sketch3.addConstraint(Sketcher.Constraint("PointOnObject", 4, 2, -1))
sketch3.addConstraint(Sketcher.Constraint("PointOnObject", 8, 2, -1))
sketch3.addConstraint(Sketcher.Constraint("PointOnObject", 12, 2, -1))
sketch3.addConstraint(Sketcher.Constraint("PointOnObject", 16, 2, -1))
sketch3.addConstraint(Sketcher.Constraint("PointOnObject", 20, 2, -1))
sketch3.addConstraint(Sketcher.Constraint("Horizontal", 3, 2, 6, 2))
sketch3.addConstraint(Sketcher.Constraint("Horizontal", 7, 2, 10, 2))
sketch3.addConstraint(Sketcher.Constraint("Horizontal", 11, 2, 14, 2))
sketch3.addConstraint(Sketcher.Constraint("Horizontal", 15, 2, 18, 2))
sketch3.addConstraint(Sketcher.Constraint("Horizontal", 19, 2, 22, 2))
sketch3.addConstraint(Sketcher.Constraint("DistanceX", 1, 1, 1, 2, 21.162301))
sketch3.addConstraint(Sketcher.Constraint("DistanceX", 4, 2, 8, 2, Q("0.5667 in")))
sketch3.addConstraint(Sketcher.Constraint("DistanceX", 9, 1, 9, 2, 10.676481))
sketch3.addConstraint(Sketcher.Constraint("DistanceX", 21, 1, 21, 2, 20.97197))
sketch3.addConstraint(Sketcher.Constraint("DistanceY", 0, 2, 0, 1, 28.624671))
sketch3.addConstraint(Sketcher.Constraint("DistanceX", 17, 2, 20, 2, 5.6681))
sketch3.addConstraint(Sketcher.Constraint("DistanceX", 5, 1, 5, 2, 8.483984))
sketch3.addConstraint(Sketcher.Constraint("DistanceX", 13, 1, 13, 2, 10.295175))
sketch3.addConstraint(Sketcher.Constraint("DistanceX", 17, 1, 17, 2, 9.068962))
sketch3.addConstraint(Sketcher.Constraint("DistanceX", 12, 2, -1, 1, 60.962811))
sketch3.addConstraint(Sketcher.Constraint("DistanceX", 16, 2, -1, 1, 44.81829))
sketch3.addConstraint(Sketcher.Constraint("DistanceX", 1, 2, 4, 2, 6.100848))
sketch3.addConstraint(Sketcher.Constraint("DistanceX", 5, 2, 12, 2, 21.257631))
pocket2 = doc.addObject("PartDesign::Pocket", "Pocket001")
body.addObject(pocket2)
pocket2.Profile = sketch3
pocket2.Length = Q("0.26 in")

# Sketch on an angled plane
sketch4 = doc.addObject("Sketcher::SketchObject", "Sketch003")
body.addObject(sketch4)
sketch4.Placement = App.Placement(App.Vector(-20.38151, 0, 23.402581), App.Rotation(App.Vector(0.754103667, 0, 0.656755403), App.Vector(0, 1, 0), App.Vector(-0.656755403, 0, 0.754103667), "ZXY"))
sketch4.addGeometry(Part.LineSegment(App.Vector(33, -6, 0), App.Vector(33, -36, 0)), False)
sketch4.addGeometry(Part.LineSegment(App.Vector(33, -36, 0), App.Vector(84, -36, 0)), False)
sketch4.addGeometry(Part.LineSegment(App.Vector(84, -36, 0), App.Vector(84, -6, 0)), False)
sketch4.addGeometry(Part.LineSegment(App.Vector(84, -6, 0), App.Vector(33, -6, 0)), False)
sketch4.addGeometry(Part.LineSegment(App.Vector(84, -47, 0), App.Vector(33, -47, 0)), False)
sketch4.addGeometry(Part.LineSegment(App.Vector(33, -47, 0), App.Vector(33, -80, 0)), False)
sketch4.addGeometry(Part.LineSegment(App.Vector(33, -80, 0), App.Vector(84, -80, 0)), False)
sketch4.addGeometry(Part.LineSegment(App.Vector(84, -80, 0), App.Vector(84, -47, 0)), False)
sketch4.addGeometry(Part.LineSegment(App.Vector(33, -91, 0), App.Vector(33, -121, 0)), False)
sketch4.addGeometry(Part.LineSegment(App.Vector(33, -121, 0), App.Vector(84, -121, 0)), False)
sketch4.addGeometry(Part.LineSegment(App.Vector(84, -121, 0), App.Vector(84, -91, 0)), False)
sketch4.addGeometry(Part.LineSegment(App.Vector(84, -91, 0), App.Vector(33, -91, 0)), False)
sketch4.addGeometry(Part.LineSegment(App.Vector(-30, -91, 0), App.Vector(-30, -121, 0)), False)
sketch4.addGeometry(Part.LineSegment(App.Vector(-30, -121, 0), App.Vector(21, -121, 0)), False)
sketch4.addGeometry(Part.LineSegment(App.Vector(21, -121, 0), App.Vector(21, -91, 0)), False)
sketch4.addGeometry(Part.LineSegment(App.Vector(21, -91, 0), App.Vector(-30, -91, 0)), False)
sketch4.addGeometry(Part.LineSegment(App.Vector(-30, -47, 0), App.Vector(-30, -80, 0)), False)
sketch4.addGeometry(Part.LineSegment(App.Vector(-30, -80, 0), App.Vector(21, -80, 0)), False)
sketch4.addGeometry(Part.LineSegment(App.Vector(21, -80, 0), App.Vector(21, -47, 0)), False)
sketch4.addGeometry(Part.LineSegment(App.Vector(21, -47, 0), App.Vector(-30, -47, 0)), False)
sketch4.addGeometry(Part.LineSegment(App.Vector(-30, -6, 0), App.Vector(-30, -36, 0)), False)
sketch4.addGeometry(Part.LineSegment(App.Vector(-30, -36, 0), App.Vector(21, -36, 0)), False)
sketch4.addGeometry(Part.LineSegment(App.Vector(21, -36, 0), App.Vector(21, -6, 0)), False)
sketch4.addGeometry(Part.LineSegment(App.Vector(21, -6, 0), App.Vector(-30, -6, 0)), False)
sketch4.addConstraint(Sketcher.Constraint("Coincident", 0, 2, 1, 1))
sketch4.addConstraint(Sketcher.Constraint("Coincident", 1, 2, 2, 1))
sketch4.addConstraint(Sketcher.Constraint("Coincident", 2, 2, 3, 1))
sketch4.addConstraint(Sketcher.Constraint("Coincident", 3, 2, 0, 1))
sketch4.addConstraint(Sketcher.Constraint("Coincident", 4, 2, 5, 1))
sketch4.addConstraint(Sketcher.Constraint("Coincident", 5, 2, 6, 1))
sketch4.addConstraint(Sketcher.Constraint("Coincident", 6, 2, 7, 1))
sketch4.addConstraint(Sketcher.Constraint("Coincident", 7, 2, 4, 1))
sketch4.addConstraint(Sketcher.Constraint("Coincident", 8, 2, 9, 1))
sketch4.addConstraint(Sketcher.Constraint("Coincident", 9, 2, 10, 1))
sketch4.addConstraint(Sketcher.Constraint("Coincident", 10, 2, 11, 1))
sketch4.addConstraint(Sketcher.Constraint("Coincident", 11, 2, 8, 1))
sketch4.addConstraint(Sketcher.Constraint("Coincident", 12, 2, 13, 1))
sketch4.addConstraint(Sketcher.Constraint("Coincident", 13, 2, 14, 1))
sketch4.addConstraint(Sketcher.Constraint("Coincident", 14, 2, 15, 1))
sketch4.addConstraint(Sketcher.Constraint("Coincident", 15, 2, 12, 1))
sketch4.addConstraint(Sketcher.Constraint("Coincident", 16, 2, 17, 1))
sketch4.addConstraint(Sketcher.Constraint("Coincident", 17, 2, 18, 1))
sketch4.addConstraint(Sketcher.Constraint("Coincident", 18, 2, 19, 1))
sketch4.addConstraint(Sketcher.Constraint("Coincident", 19, 2, 16, 1))
sketch4.addConstraint(Sketcher.Constraint("Coincident", 20, 2, 21, 1))
sketch4.addConstraint(Sketcher.Constraint("Coincident", 21, 2, 22, 1))
sketch4.addConstraint(Sketcher.Constraint("Coincident", 22, 2, 23, 1))
sketch4.addConstraint(Sketcher.Constraint("Coincident", 23, 2, 20, 1))
sketch4.addConstraint(Sketcher.Constraint("Vertical", 0))
sketch4.addConstraint(Sketcher.Constraint("Horizontal", 1))
sketch4.addConstraint(Sketcher.Constraint("Vertical", 2))
sketch4.addConstraint(Sketcher.Constraint("Horizontal", 3))
sketch4.addConstraint(Sketcher.Constraint("Horizontal", 4))
sketch4.addConstraint(Sketcher.Constraint("Vertical", 5))
sketch4.addConstraint(Sketcher.Constraint("Horizontal", 6))
sketch4.addConstraint(Sketcher.Constraint("Vertical", 7))
sketch4.addConstraint(Sketcher.Constraint("Vertical", 8))
sketch4.addConstraint(Sketcher.Constraint("Horizontal", 9))
sketch4.addConstraint(Sketcher.Constraint("Vertical", 10))
sketch4.addConstraint(Sketcher.Constraint("Horizontal", 11))
sketch4.addConstraint(Sketcher.Constraint("Vertical", 12))
sketch4.addConstraint(Sketcher.Constraint("Horizontal", 13))
sketch4.addConstraint(Sketcher.Constraint("Vertical", 14))
sketch4.addConstraint(Sketcher.Constraint("Horizontal", 15))
sketch4.addConstraint(Sketcher.Constraint("Vertical", 16))
sketch4.addConstraint(Sketcher.Constraint("Horizontal", 17))
sketch4.addConstraint(Sketcher.Constraint("Vertical", 18))
sketch4.addConstraint(Sketcher.Constraint("Horizontal", 19))
sketch4.addConstraint(Sketcher.Constraint("Vertical", 20))
sketch4.addConstraint(Sketcher.Constraint("Horizontal", 21))
sketch4.addConstraint(Sketcher.Constraint("Vertical", 22))
sketch4.addConstraint(Sketcher.Constraint("Horizontal", 23))
sketch4.addConstraint(Sketcher.Constraint("Horizontal", 9, 2, 12, 2))
sketch4.addConstraint(Sketcher.Constraint("Horizontal", 11, 2, 14, 2))
sketch4.addConstraint(Sketcher.Constraint("Horizontal", 6, 2, 16, 2))
sketch4.addConstraint(Sketcher.Constraint("Horizontal", 7, 2, 18, 2))
sketch4.addConstraint(Sketcher.Constraint("Horizontal", 1, 2, 20, 2))
sketch4.addConstraint(Sketcher.Constraint("Horizontal", 3, 2, 22, 2))
sketch4.addConstraint(Sketcher.Constraint("Vertical", 3, 2, 4, 2))
sketch4.addConstraint(Sketcher.Constraint("Vertical", 2, 2, 6, 2))
sketch4.addConstraint(Sketcher.Constraint("Vertical", 5, 2, 8, 2))
sketch4.addConstraint(Sketcher.Constraint("Vertical", 7, 2, 9, 2))
sketch4.addConstraint(Sketcher.Constraint("Vertical", 15, 2, 16, 2))
sketch4.addConstraint(Sketcher.Constraint("Vertical", 14, 2, 17, 2))
sketch4.addConstraint(Sketcher.Constraint("Vertical", 19, 2, 20, 2))
sketch4.addConstraint(Sketcher.Constraint("Vertical", 18, 2, 21, 2))
sketch4.addConstraint(Sketcher.Constraint("Equal", 11, 13))
sketch4.addConstraint(Sketcher.Constraint("Equal", 2, 8))
sketch4.addConstraint(Sketcher.Constraint("DistanceY", 5, 2, 5, 1, 33.681299))
sketch4.addConstraint(Sketcher.Constraint("DistanceY", 0, 2, 0, 1, 29.48995))
sketch4.addConstraint(Sketcher.Constraint("DistanceX", 1, 1, 1, 2, 50.955746))
sketch4.addConstraint(Sketcher.Constraint("DistanceY", 0, 2, -1, 1, 35.719112))
sketch4.addConstraint(Sketcher.Constraint("DistanceY", 4, 2, -1, 1, 46.65935))
sketch4.addConstraint(Sketcher.Constraint("DistanceY", 8, 2, -1, 1, 120.770839))
sketch4.addConstraint(Sketcher.Constraint("DistanceX", 12, 2, -1, 1, 30.20301))
sketch4.addConstraint(Sketcher.Constraint("DistanceX", 13, 2, 8, 2, 12.05017))
pad2 = doc.addObject("PartDesign::Pad", "Pad001")
body.addObject(pad2)
pad2.Profile = sketch4
pad2.Length = Q("0.1 in")

doc.recompute()
